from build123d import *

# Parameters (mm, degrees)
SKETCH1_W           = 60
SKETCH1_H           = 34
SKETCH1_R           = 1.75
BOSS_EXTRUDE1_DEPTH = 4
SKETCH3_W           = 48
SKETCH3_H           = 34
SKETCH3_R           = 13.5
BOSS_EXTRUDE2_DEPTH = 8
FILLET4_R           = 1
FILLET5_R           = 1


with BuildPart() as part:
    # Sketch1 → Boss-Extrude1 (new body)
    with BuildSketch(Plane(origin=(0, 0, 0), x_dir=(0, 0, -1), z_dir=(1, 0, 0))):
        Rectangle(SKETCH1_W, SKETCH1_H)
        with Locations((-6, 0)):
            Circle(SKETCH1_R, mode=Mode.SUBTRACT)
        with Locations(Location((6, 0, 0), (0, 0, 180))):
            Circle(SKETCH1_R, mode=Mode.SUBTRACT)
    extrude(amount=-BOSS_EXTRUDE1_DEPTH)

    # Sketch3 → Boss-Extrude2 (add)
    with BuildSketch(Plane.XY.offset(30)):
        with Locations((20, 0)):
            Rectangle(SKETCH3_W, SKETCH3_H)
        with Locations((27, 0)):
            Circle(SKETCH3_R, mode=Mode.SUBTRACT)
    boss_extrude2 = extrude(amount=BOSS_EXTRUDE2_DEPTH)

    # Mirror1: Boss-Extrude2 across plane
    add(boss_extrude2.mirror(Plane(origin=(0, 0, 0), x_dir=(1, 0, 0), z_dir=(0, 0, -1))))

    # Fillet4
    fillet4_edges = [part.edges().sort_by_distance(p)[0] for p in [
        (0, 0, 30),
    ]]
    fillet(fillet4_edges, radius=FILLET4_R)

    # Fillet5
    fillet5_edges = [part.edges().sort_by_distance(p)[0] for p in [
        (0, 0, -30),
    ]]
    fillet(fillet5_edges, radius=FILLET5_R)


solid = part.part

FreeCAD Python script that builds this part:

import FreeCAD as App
import Part
import Sketcher

V = App.Vector


def edges_at(feature, points):
    """Names of the edges that pass closest to the given points."""
    edges = feature.Shape.Edges
    near = lambda p: min(range(len(edges)), key=lambda i: edges[i].distToShape(Part.Vertex(*p))[0])
    return sorted({f"Edge{near(p) + 1}" for p in points})

doc = App.newDocument("Part")
body = doc.addObject("PartDesign::Body", "Body")

# Sketch on YZ plane
sketch1 = doc.addObject("Sketcher::SketchObject", "Sketch")
body.addObject(sketch1)
sketch1.AttachmentSupport = (doc.YZ_Plane, [""])
sketch1.MapMode = "FlatFace"
sketch1.addGeometry([
    Part.LineSegment(V(17, 30, 0), V(-17, 30, 0)),  # 0
    Part.LineSegment(V(-17, 30, 0), V(-17, -30, 0)),  # 1
    Part.LineSegment(V(-17, -30, 0), V(17, -30, 0)),  # 2
    Part.LineSegment(V(17, -30, 0), V(17, 30, 0)),  # 3
    Part.Circle(V(0, 6, 0), V(0, 0, 1), 1.8),  # 4
    Part.Circle(V(0, -6, 0), V(0, 0, 1), 1.8),  # 5
], False)
sketch1.addConstraint([
    Sketcher.Constraint("Coincident", 0, 2, 1, 1),
    Sketcher.Constraint("Coincident", 1, 2, 2, 1),
    Sketcher.Constraint("Coincident", 2, 2, 3, 1),
    Sketcher.Constraint("Coincident", 3, 2, 0, 1),
    Sketcher.Constraint("Horizontal", 0),
    Sketcher.Constraint("Vertical", 1),
    Sketcher.Constraint("Horizontal", 2),
    Sketcher.Constraint("Vertical", 3),
    Sketcher.Constraint("Equal", 4, 5),
    Sketcher.Constraint("Symmetric", 4, 3, 5, 3, -1, 1),
    Sketcher.Constraint("Symmetric", 0, 2, 2, 2, -1, 1),
    Sketcher.Constraint("PointOnObject", 4, 3, -2),
    Sketcher.Constraint("Diameter", 4, 3.5),
    Sketcher.Constraint("DistanceX", 0, 2, 0, 1, 34.0),
    Sketcher.Constraint("DistanceY", 1, 2, 1, 1, 60.0),
    Sketcher.Constraint("DistanceY", -1, 1, 4, 3, 6.0),
])
pad1 = doc.addObject("PartDesign::Pad", "Pad")
body.addObject(pad1)
pad1.Profile = sketch1
pad1.Length = 4
pad1.Reversed = True

# Sketch on XY plane
sketch2 = doc.addObject("Sketcher::SketchObject", "Sketch001")
body.addObject(sketch2)
sketch2.AttachmentSupport = (doc.XY_Plane, [""])
sketch2.MapMode = "FlatFace"
sketch2.AttachmentOffset = App.Placement(V(0, 0, 30), App.Rotation())
sketch2.addGeometry([
    Part.LineSegment(V(-4, 17, 0), V(-4, -17, 0)),  # 0
    Part.LineSegment(V(-4, -17, 0), V(44, -17, 0)),  # 1
    Part.LineSegment(V(44, -17, 0), V(44, 17, 0)),  # 2
    Part.LineSegment(V(44, 17, 0), V(-4, 17, 0)),  # 3
    Part.Circle(V(27, 0, 0), V(0, 0, 1), 14),  # 4
], False)
sketch2.addConstraint([
    Sketcher.Constraint("Coincident", 0, 2, 1, 1),
    Sketcher.Constraint("Coincident", 1, 2, 2, 1),
    Sketcher.Constraint("Coincident", 2, 2, 3, 1),
    Sketcher.Constraint("Coincident", 3, 2, 0, 1),
    Sketcher.Constraint("Vertical", 0),
    Sketcher.Constraint("Horizontal", 1),
    Sketcher.Constraint("Vertical", 2),
    Sketcher.Constraint("Horizontal", 3),
    Sketcher.Constraint("PointOnObject", 4, 3, -1),
    Sketcher.Constraint("Diameter", 4, 27.0),
    Sketcher.Constraint("DistanceX", 1, 1, 1, 2, 48.0),
    Sketcher.Constraint("DistanceY", 0, 2, 0, 1, 34.0),
    Sketcher.Constraint("DistanceX", -1, 1, 4, 3, 27.0),
    Sketcher.Constraint("DistanceX", 0, 2, -1, 1, 4.0),
    Sketcher.Constraint("DistanceY", 0, 2, -1, 1, 17.0),
])
pad2 = doc.addObject("PartDesign::Pad", "Pad001")
body.addObject(pad2)
pad2.Profile = sketch2
pad2.Length = 8
doc.recompute()

mirrored = doc.addObject("PartDesign::Mirrored", "Mirrored")
body.addObject(mirrored)
mirrored.Originals = [pad2]
mirrored.MirrorPlane = (doc.XY_Plane, [""])
body.Tip = mirrored
doc.recompute()

fillet = doc.addObject("PartDesign::Fillet", "Fillet")
body.addObject(fillet)
fillet.Base = (mirrored, edges_at(mirrored, [(0, 0, 30)]))
fillet.Radius = 1
doc.recompute()

fillet2 = doc.addObject("PartDesign::Fillet", "Fillet001")
body.addObject(fillet2)
fillet2.Base = (fillet, edges_at(fillet, [(0, 0, -30)]))
fillet2.Radius = 1

doc.recompute()
